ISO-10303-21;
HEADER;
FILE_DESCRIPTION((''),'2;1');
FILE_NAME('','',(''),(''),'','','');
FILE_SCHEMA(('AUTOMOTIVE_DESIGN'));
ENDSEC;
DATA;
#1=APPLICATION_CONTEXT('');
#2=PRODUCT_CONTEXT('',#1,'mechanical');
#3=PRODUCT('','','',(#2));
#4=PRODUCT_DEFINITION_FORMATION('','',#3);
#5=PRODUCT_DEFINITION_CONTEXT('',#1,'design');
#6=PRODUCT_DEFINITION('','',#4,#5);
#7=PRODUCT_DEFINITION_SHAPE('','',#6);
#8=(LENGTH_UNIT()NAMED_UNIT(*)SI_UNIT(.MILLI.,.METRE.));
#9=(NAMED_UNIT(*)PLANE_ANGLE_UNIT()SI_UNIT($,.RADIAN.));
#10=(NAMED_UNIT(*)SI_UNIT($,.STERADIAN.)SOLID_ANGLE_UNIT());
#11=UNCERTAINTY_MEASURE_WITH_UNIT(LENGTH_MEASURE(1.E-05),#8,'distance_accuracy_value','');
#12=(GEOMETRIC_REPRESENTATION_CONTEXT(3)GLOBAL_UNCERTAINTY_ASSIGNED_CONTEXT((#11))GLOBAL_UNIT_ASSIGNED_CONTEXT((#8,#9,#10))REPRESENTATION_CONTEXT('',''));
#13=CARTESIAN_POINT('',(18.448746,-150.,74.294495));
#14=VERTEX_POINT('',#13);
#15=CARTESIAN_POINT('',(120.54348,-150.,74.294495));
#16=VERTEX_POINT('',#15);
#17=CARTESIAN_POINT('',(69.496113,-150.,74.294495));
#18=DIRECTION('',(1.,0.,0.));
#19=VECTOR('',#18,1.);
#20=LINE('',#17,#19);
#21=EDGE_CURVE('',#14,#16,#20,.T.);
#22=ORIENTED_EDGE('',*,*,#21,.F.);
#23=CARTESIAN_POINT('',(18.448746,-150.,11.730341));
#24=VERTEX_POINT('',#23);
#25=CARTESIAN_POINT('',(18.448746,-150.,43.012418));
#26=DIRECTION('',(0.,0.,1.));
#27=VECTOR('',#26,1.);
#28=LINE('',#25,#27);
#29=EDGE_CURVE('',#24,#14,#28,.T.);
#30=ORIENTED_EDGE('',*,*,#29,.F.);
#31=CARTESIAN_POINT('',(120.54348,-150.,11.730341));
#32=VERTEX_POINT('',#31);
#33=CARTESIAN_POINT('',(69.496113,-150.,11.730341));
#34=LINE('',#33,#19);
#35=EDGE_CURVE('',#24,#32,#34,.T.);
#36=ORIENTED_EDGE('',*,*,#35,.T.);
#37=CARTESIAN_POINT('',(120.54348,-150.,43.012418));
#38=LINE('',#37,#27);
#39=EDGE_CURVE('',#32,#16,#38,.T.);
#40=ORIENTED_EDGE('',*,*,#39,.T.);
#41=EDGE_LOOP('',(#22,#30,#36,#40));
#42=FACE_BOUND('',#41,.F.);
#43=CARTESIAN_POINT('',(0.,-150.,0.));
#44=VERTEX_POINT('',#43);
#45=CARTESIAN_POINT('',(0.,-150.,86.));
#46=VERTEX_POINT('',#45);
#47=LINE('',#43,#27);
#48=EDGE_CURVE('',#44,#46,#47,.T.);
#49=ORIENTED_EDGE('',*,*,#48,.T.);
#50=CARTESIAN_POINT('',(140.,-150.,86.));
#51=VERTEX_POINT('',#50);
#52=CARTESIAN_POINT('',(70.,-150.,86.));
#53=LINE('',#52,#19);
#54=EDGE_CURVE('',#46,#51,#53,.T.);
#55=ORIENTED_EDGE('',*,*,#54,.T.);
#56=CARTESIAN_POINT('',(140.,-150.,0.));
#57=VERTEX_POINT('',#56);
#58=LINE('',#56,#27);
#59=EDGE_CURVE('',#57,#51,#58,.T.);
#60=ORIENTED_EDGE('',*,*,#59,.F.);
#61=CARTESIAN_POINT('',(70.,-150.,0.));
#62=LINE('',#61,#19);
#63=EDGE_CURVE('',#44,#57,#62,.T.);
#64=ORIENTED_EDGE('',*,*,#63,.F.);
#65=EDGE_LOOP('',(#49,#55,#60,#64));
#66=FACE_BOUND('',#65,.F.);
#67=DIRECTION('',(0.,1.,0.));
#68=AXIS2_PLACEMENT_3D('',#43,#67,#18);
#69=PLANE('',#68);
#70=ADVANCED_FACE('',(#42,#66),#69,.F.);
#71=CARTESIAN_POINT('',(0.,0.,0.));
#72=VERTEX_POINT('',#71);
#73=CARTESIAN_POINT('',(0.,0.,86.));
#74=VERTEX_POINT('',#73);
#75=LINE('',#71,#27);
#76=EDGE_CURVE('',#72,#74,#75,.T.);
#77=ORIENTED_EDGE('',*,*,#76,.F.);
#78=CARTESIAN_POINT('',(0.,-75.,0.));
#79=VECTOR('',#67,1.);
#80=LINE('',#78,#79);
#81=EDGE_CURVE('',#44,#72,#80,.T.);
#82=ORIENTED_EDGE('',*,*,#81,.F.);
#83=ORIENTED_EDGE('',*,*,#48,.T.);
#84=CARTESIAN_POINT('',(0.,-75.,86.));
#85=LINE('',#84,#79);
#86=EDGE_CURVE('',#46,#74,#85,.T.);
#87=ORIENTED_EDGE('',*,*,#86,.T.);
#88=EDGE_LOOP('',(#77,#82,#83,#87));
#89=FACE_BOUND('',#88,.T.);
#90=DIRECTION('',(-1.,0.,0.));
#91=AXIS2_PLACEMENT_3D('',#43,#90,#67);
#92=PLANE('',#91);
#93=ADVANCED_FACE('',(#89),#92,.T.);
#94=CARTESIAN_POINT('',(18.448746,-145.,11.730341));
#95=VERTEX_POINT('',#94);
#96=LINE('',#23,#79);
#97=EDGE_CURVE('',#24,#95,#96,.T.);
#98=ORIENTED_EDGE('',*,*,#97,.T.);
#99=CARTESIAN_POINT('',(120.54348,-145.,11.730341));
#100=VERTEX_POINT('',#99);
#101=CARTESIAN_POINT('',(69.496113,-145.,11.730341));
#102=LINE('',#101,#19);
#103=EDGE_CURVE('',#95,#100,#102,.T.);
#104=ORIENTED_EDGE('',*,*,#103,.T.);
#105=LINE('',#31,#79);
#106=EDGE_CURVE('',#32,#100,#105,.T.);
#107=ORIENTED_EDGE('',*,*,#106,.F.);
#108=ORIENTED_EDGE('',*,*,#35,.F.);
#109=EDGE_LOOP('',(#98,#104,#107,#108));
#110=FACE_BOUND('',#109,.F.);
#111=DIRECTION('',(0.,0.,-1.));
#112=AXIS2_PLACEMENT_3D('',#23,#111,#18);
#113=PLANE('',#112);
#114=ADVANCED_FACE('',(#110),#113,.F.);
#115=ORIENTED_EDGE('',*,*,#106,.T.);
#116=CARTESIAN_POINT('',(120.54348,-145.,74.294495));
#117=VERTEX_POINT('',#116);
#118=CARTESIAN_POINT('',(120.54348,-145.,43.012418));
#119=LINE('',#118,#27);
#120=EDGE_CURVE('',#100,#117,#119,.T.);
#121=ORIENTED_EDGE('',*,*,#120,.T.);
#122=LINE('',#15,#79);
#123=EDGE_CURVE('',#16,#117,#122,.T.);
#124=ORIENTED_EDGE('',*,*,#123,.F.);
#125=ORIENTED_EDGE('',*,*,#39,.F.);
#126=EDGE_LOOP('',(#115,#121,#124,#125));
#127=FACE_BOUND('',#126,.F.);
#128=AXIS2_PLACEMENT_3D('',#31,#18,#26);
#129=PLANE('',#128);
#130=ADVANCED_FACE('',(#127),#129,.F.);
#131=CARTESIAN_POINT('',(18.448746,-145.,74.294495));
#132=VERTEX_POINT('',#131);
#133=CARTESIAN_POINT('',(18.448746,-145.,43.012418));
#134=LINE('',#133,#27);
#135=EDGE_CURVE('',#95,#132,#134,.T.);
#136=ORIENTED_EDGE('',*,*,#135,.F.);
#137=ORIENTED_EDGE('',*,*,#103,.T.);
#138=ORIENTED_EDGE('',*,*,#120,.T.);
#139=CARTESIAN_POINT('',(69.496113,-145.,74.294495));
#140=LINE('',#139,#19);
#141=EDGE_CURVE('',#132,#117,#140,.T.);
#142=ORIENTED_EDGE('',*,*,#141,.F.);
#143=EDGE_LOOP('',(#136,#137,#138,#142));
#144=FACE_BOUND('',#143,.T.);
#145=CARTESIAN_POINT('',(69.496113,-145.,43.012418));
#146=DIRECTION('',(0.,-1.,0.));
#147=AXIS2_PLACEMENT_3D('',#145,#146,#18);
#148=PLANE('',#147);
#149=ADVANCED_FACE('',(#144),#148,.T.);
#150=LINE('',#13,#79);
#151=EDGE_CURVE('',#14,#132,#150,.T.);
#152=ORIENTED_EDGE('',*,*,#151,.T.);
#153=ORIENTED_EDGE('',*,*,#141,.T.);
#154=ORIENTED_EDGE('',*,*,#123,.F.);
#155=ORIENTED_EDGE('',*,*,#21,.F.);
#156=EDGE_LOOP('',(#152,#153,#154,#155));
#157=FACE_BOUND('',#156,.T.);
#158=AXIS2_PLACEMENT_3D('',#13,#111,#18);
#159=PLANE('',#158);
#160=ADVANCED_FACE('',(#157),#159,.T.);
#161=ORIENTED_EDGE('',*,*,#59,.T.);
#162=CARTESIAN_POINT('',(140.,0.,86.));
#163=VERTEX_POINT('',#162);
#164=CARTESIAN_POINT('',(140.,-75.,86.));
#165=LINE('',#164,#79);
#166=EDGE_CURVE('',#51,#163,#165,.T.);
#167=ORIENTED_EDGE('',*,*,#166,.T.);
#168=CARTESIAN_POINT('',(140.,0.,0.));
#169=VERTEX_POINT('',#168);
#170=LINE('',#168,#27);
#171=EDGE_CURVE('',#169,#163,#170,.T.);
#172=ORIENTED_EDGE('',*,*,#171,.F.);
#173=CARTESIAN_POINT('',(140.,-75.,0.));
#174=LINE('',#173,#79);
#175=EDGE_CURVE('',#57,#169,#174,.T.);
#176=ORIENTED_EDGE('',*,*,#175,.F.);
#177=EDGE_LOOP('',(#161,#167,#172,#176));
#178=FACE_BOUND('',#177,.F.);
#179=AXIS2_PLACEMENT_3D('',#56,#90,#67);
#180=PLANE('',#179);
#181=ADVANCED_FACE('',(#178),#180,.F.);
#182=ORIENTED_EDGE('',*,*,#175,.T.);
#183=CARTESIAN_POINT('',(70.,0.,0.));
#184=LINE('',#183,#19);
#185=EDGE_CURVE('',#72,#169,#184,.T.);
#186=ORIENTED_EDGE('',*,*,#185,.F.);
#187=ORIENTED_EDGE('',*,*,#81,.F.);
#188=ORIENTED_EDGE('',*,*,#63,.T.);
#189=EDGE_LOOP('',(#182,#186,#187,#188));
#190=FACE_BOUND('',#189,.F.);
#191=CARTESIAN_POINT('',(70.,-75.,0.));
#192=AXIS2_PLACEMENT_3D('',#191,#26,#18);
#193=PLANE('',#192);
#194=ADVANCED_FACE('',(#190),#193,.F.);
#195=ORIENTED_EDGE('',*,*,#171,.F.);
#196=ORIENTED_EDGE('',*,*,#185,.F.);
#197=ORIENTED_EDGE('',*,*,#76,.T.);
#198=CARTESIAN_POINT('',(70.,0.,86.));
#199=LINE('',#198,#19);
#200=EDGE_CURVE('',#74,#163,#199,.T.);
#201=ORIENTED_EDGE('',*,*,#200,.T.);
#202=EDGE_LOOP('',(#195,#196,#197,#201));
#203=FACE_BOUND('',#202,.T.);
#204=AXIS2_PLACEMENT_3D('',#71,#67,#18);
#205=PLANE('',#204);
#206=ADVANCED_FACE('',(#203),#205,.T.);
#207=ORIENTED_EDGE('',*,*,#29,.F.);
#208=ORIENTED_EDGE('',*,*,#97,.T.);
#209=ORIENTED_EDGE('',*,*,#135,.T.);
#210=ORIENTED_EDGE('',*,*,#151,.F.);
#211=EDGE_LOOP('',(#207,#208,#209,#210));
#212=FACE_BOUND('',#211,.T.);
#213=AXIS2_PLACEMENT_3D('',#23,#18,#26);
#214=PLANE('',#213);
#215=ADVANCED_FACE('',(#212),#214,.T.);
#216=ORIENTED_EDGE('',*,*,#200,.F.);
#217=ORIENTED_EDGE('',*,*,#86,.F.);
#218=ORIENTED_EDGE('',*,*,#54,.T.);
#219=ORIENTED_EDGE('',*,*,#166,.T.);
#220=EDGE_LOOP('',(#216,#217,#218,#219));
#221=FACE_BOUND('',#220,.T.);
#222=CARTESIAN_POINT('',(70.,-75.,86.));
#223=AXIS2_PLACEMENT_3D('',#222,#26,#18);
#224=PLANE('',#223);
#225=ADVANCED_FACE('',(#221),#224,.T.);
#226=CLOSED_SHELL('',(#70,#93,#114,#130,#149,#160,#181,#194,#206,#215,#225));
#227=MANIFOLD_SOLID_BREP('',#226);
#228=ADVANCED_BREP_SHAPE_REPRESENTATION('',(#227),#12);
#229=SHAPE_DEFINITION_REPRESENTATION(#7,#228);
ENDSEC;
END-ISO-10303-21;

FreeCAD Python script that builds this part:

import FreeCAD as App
import Part
import Sketcher
from FreeCAD import Vector
Q = App.Units.Quantity

doc = App.newDocument("Part")
params = doc.addObject("Spreadsheet::Sheet", "Params")
for row, (alias, value) in enumerate([
    ("sketch1_width", "140 mm"),
    ("sketch1_height", "150 mm"),
    ("pad1_length", "86 mm"),
    ("pocket1_length", "5 mm"),
], start=1):
    params.set(f"A{row}", alias)
    params.set(f"B{row}", "=" + value)
    params.setAlias(f"B{row}", alias)

body = doc.addObject("PartDesign::Body", "Body")

# Sketch on XY plane
sketch1 = body.newObject("Sketcher::SketchObject", "Sketch")
sketch1.AttachmentSupport = (doc.getObject("XY_Plane"), [""])
sketch1.MapMode = "FlatFace"
sketch1.addGeometry([
    Part.LineSegment(Vector(0, 0, 0), Vector(0, -150, 0)),
    Part.LineSegment(Vector(0, -150, 0), Vector(140, -150, 0)),
    Part.LineSegment(Vector(140, -150, 0), Vector(140, 0, 0)),
    Part.LineSegment(Vector(140, 0, 0), Vector(0, 0, 0)),
], False)
sketch1.addConstraint([
    Sketcher.Constraint("Coincident", 0, 2, 1, 1),
    Sketcher.Constraint("Coincident", 1, 2, 2, 1),
    Sketcher.Constraint("Coincident", 2, 2, 3, 1),
    Sketcher.Constraint("Coincident", 3, 2, 0, 1),
    Sketcher.Constraint("Vertical", 0),
    Sketcher.Constraint("Horizontal", 1),
    Sketcher.Constraint("Vertical", 2),
    Sketcher.Constraint("Horizontal", 3),
    Sketcher.Constraint("Coincident", 3, 2, -1, 1),
    Sketcher.Constraint("DistanceX", 1, 1, 1, 2, Q("140 mm")),
    Sketcher.Constraint("DistanceY", 0, 2, 0, 1, Q("150 mm")),
])
sketch1.setExpression("Constraints[9]", "Params.sketch1_width")
sketch1.setExpression("Constraints[10]", "Params.sketch1_height")
pad1 = body.newObject("PartDesign::Pad", "Pad")
pad1.Profile = sketch1
pad1.setExpression("Length", "Params.pad1_length")

# Sketch on XZ plane
sketch2 = body.newObject("Sketcher::SketchObject", "Sketch001")
sketch2.AttachmentSupport = (doc.getObject("XZ_Plane"), [""])
sketch2.MapMode = "FlatFace"
sketch2.AttachmentOffset = App.Placement(Vector(0, 0, 150), App.Rotation())
sketch2.addGeometry([
    Part.LineSegment(Vector(18.448746, 74.294495, 0), Vector(18.448746, 11.730341, 0)),
    Part.LineSegment(Vector(18.448746, 11.730341, 0), Vector(120.54348, 11.730341, 0)),
    Part.LineSegment(Vector(120.54348, 11.730341, 0), Vector(120.54348, 74.294495, 0)),
    Part.LineSegment(Vector(120.54348, 74.294495, 0), Vector(18.448746, 74.294495, 0)),
], False)
sketch2.addConstraint([
    Sketcher.Constraint("Coincident", 0, 2, 1, 1),
    Sketcher.Constraint("Coincident", 1, 2, 2, 1),
    Sketcher.Constraint("Coincident", 2, 2, 3, 1),
    Sketcher.Constraint("Coincident", 3, 2, 0, 1),
    Sketcher.Constraint("Vertical", 0),
    Sketcher.Constraint("Horizontal", 1),
    Sketcher.Constraint("Vertical", 2),
    Sketcher.Constraint("Horizontal", 3),
    Sketcher.Constraint("DistanceX", 1, 1, 1, 2, Q("102.094734 mm")),
    Sketcher.Constraint("DistanceY", 0, 2, 0, 1, Q("62.564154 mm")),
    Sketcher.Constraint("DistanceY", -1, 1, 0, 2, Q("11.730341 mm")),
    Sketcher.Constraint("DistanceX", -1, 1, 1, 2, Q("120.54348 mm")),
])
pocket1 = body.newObject("PartDesign::Pocket", "Pocket")
pocket1.Profile = sketch2
pocket1.setExpression("Length", "Params.pocket1_length")

doc.recompute()
